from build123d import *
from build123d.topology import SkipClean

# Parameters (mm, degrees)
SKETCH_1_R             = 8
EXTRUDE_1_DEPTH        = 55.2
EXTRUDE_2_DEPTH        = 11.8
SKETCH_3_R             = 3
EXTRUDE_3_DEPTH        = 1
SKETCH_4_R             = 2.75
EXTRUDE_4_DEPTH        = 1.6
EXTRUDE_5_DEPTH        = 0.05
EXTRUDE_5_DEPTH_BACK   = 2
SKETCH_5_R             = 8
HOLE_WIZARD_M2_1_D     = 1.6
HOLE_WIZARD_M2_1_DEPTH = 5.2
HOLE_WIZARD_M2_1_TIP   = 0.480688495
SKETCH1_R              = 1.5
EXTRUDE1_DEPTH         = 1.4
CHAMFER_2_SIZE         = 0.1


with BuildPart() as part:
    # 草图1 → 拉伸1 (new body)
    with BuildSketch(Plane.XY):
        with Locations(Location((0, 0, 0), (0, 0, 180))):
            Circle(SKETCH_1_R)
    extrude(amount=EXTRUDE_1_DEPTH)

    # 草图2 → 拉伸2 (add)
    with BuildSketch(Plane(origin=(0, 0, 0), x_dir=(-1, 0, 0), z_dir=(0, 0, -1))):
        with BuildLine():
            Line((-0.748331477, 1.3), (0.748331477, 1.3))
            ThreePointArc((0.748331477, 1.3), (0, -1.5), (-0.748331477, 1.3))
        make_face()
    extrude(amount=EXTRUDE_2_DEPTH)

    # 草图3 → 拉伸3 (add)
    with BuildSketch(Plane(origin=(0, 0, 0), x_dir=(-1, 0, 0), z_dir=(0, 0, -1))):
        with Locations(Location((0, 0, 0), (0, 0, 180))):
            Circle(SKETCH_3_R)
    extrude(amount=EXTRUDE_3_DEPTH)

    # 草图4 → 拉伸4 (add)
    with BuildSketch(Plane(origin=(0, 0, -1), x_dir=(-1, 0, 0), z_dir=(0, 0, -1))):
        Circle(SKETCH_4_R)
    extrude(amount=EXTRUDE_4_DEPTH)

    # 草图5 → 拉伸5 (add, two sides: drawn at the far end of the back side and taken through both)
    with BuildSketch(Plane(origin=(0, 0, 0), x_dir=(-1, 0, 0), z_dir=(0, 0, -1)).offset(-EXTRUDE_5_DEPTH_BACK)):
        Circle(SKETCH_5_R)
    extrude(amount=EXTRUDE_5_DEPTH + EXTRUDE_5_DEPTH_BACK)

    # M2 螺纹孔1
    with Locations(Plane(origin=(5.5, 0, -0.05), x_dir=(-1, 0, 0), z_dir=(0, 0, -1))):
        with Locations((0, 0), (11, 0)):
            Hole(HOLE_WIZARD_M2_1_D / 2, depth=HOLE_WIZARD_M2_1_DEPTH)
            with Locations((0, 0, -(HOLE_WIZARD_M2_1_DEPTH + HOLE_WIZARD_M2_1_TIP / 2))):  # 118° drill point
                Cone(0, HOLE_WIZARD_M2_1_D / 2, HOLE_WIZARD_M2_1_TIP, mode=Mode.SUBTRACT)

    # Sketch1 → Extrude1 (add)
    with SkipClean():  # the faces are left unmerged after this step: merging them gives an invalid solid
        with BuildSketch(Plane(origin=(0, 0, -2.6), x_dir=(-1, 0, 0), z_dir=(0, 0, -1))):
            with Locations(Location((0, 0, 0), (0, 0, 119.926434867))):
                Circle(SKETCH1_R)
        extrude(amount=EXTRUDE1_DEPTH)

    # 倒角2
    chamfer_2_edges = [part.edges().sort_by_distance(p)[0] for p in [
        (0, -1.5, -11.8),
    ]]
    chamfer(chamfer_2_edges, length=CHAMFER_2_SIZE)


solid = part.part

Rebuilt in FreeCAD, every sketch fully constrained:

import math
import FreeCAD as App
import Part
import Sketcher


def edges_at(feature, points):
    """Names of the edges that pass closest to the given points."""
    edges = feature.Shape.Edges
    near = lambda p: min(range(len(edges)), key=lambda i: edges[i].distToShape(Part.Vertex(*p))[0])
    return sorted({f"Edge{near(p) + 1}" for p in points})

doc = App.newDocument("Part")
body = doc.addObject("PartDesign::Body", "Body")

sketch1 = doc.addObject("Sketcher::SketchObject", "Sketch")
body.addObject(sketch1)
sketch1.AttachmentSupport = (doc.XY_Plane, [""])
sketch1.MapMode = "FlatFace"
sketch1.addGeometry(Part.Circle(App.Vector(0, 0, 0), App.Vector(0, 0, 1), 8), False)
sketch1.addConstraint([
    Sketcher.Constraint("Coincident", 0, 3, -1, 1),
    Sketcher.Constraint("Diameter", 0, 16.0),
])
pad1 = doc.addObject("PartDesign::Pad", "Pad")
body.addObject(pad1)
pad1.Profile = sketch1
pad1.Length = 55.2

sketch2 = doc.addObject("Sketcher::SketchObject", "Sketch001")
body.addObject(sketch2)
sketch2.AttachmentSupport = (doc.XY_Plane, [""])
sketch2.MapMode = "FlatFace"
sketch2.addGeometry([
    Part.LineSegment(App.Vector(-0.7, 1.3, 0), App.Vector(0.7, 1.3, 0)),
    Part.ArcOfCircle(Part.Circle(App.Vector(0, 0, 0), App.Vector(0, 0, 1), 1.5), math.radians(120), math.radians(420)),
], False)
sketch2.addConstraint([
    Sketcher.Constraint("Coincident", 0, 1, 1, 1),
    Sketcher.Constraint("Coincident", 1, 2, 0, 2),
    Sketcher.Constraint("Horizontal", 0),
    Sketcher.Constraint("Coincident", 1, 3, -1, 1),
    Sketcher.Constraint("Radius", 1, 1.5),
    Sketcher.Constraint("DistanceY", -1, 1, 0, 1, 1.3),
])
pad2 = doc.addObject("PartDesign::Pad", "Pad001")
body.addObject(pad2)
pad2.Profile = sketch2
pad2.Length = 11.8
pad2.Reversed = True

sketch3 = doc.addObject("Sketcher::SketchObject", "Sketch002")
body.addObject(sketch3)
sketch3.AttachmentSupport = (doc.XY_Plane, [""])
sketch3.MapMode = "FlatFace"
sketch3.addGeometry(Part.Circle(App.Vector(0, 0, 0), App.Vector(0, 0, 1), 3), False)
sketch3.addConstraint([
    Sketcher.Constraint("Coincident", 0, 3, -1, 1),
    Sketcher.Constraint("Diameter", 0, 6.0),
])
pad3 = doc.addObject("PartDesign::Pad", "Pad002")
body.addObject(pad3)
pad3.Profile = sketch3
pad3.Length = 1
pad3.Reversed = True

sketch4 = doc.addObject("Sketcher::SketchObject", "Sketch003")
body.addObject(sketch4)
sketch4.AttachmentSupport = (doc.XY_Plane, [""])
sketch4.MapMode = "FlatFace"
sketch4.AttachmentOffset = App.Placement(App.Vector(0, 0, -1), App.Rotation())
sketch4.addGeometry(Part.Circle(App.Vector(0, 0, 0), App.Vector(0, 0, 1), 2.8), False)
sketch4.addConstraint([
    Sketcher.Constraint("Coincident", 0, 3, -1, 1),
    Sketcher.Constraint("Diameter", 0, 5.5),
])
pad4 = doc.addObject("PartDesign::Pad", "Pad003")
body.addObject(pad4)
pad4.Profile = sketch4
pad4.Length = 1.6
pad4.Reversed = True

sketch5 = doc.addObject("Sketcher::SketchObject", "Sketch004")
body.addObject(sketch5)
sketch5.AttachmentSupport = (doc.XY_Plane, [""])
sketch5.MapMode = "FlatFace"
sketch5.addGeometry(Part.Circle(App.Vector(0, 0, 0), App.Vector(0, 0, 1), 8), False)
sketch5.addConstraint([
    Sketcher.Constraint("Coincident", 0, 3, -1, 1),
    Sketcher.Constraint("Diameter", 0, 16.0),
])
pad5 = doc.addObject("PartDesign::Pad", "Pad004")
body.addObject(pad5)
pad5.Profile = sketch5
pad5.Type = "TwoLengths"
pad5.Length = 0.05
pad5.Length2 = 2
pad5.Reversed = True

sketch6 = doc.addObject("Sketcher::SketchObject", "Sketch005")
body.addObject(sketch6)
sketch6.AttachmentSupport = (doc.XY_Plane, [""])
sketch6.MapMode = "FlatFace"
sketch6.AttachmentOffset = App.Placement(App.Vector(0, 0, -0.05), App.Rotation())
sketch6.addGeometry([
    Part.Circle(App.Vector(5.5, 0, 0), App.Vector(0, 0, 1), 0.8),
    Part.Circle(App.Vector(-5.5, 0, 0), App.Vector(0, 0, 1), 0.8),
], False)
sketch6.addConstraint([
    Sketcher.Constraint("Equal", 0, 1),
    Sketcher.Constraint("Symmetric", 0, 3, 1, 3, -1, 1),
    Sketcher.Constraint("PointOnObject", 0, 3, -1),
    Sketcher.Constraint("Diameter", 0, 1.6),
    Sketcher.Constraint("DistanceX", 1, 3, 0, 3, 11.0),
])
doc.recompute()
hole = doc.addObject("PartDesign::Hole", "Hole")
body.addObject(hole)
hole.Profile = sketch6
hole.ThreadType = "None"
hole.Diameter = 1.6
hole.DepthType = "Dimension"
hole.Depth = 5.2
hole.DrillPoint = "Angled"
hole.DrillPointAngle = 118
hole.Reversed = True

sketch7 = doc.addObject("Sketcher::SketchObject", "Sketch006")
body.addObject(sketch7)
sketch7.AttachmentSupport = (doc.XY_Plane, [""])
sketch7.MapMode = "FlatFace"
sketch7.AttachmentOffset = App.Placement(App.Vector(0, 0, -2.6), App.Rotation())
sketch7.addGeometry(Part.Circle(App.Vector(0, 0, 0), App.Vector(0, 0, 1), 1.5), False)
sketch7.addConstraint([
    Sketcher.Constraint("Coincident", 0, 3, -1, 1),
    Sketcher.Constraint("Diameter", 0, 3.0),
])
pad6 = doc.addObject("PartDesign::Pad", "Pad005")
body.addObject(pad6)
pad6.Profile = sketch7
pad6.Length = 1.4
pad6.Reversed = True
doc.recompute()

chamfer = doc.addObject("PartDesign::Chamfer", "Chamfer")
body.addObject(chamfer)
chamfer.Base = (pad6, edges_at(pad6, [(0, -1.5, -11.8)]))
chamfer.Size = 0.1

doc.recompute()
